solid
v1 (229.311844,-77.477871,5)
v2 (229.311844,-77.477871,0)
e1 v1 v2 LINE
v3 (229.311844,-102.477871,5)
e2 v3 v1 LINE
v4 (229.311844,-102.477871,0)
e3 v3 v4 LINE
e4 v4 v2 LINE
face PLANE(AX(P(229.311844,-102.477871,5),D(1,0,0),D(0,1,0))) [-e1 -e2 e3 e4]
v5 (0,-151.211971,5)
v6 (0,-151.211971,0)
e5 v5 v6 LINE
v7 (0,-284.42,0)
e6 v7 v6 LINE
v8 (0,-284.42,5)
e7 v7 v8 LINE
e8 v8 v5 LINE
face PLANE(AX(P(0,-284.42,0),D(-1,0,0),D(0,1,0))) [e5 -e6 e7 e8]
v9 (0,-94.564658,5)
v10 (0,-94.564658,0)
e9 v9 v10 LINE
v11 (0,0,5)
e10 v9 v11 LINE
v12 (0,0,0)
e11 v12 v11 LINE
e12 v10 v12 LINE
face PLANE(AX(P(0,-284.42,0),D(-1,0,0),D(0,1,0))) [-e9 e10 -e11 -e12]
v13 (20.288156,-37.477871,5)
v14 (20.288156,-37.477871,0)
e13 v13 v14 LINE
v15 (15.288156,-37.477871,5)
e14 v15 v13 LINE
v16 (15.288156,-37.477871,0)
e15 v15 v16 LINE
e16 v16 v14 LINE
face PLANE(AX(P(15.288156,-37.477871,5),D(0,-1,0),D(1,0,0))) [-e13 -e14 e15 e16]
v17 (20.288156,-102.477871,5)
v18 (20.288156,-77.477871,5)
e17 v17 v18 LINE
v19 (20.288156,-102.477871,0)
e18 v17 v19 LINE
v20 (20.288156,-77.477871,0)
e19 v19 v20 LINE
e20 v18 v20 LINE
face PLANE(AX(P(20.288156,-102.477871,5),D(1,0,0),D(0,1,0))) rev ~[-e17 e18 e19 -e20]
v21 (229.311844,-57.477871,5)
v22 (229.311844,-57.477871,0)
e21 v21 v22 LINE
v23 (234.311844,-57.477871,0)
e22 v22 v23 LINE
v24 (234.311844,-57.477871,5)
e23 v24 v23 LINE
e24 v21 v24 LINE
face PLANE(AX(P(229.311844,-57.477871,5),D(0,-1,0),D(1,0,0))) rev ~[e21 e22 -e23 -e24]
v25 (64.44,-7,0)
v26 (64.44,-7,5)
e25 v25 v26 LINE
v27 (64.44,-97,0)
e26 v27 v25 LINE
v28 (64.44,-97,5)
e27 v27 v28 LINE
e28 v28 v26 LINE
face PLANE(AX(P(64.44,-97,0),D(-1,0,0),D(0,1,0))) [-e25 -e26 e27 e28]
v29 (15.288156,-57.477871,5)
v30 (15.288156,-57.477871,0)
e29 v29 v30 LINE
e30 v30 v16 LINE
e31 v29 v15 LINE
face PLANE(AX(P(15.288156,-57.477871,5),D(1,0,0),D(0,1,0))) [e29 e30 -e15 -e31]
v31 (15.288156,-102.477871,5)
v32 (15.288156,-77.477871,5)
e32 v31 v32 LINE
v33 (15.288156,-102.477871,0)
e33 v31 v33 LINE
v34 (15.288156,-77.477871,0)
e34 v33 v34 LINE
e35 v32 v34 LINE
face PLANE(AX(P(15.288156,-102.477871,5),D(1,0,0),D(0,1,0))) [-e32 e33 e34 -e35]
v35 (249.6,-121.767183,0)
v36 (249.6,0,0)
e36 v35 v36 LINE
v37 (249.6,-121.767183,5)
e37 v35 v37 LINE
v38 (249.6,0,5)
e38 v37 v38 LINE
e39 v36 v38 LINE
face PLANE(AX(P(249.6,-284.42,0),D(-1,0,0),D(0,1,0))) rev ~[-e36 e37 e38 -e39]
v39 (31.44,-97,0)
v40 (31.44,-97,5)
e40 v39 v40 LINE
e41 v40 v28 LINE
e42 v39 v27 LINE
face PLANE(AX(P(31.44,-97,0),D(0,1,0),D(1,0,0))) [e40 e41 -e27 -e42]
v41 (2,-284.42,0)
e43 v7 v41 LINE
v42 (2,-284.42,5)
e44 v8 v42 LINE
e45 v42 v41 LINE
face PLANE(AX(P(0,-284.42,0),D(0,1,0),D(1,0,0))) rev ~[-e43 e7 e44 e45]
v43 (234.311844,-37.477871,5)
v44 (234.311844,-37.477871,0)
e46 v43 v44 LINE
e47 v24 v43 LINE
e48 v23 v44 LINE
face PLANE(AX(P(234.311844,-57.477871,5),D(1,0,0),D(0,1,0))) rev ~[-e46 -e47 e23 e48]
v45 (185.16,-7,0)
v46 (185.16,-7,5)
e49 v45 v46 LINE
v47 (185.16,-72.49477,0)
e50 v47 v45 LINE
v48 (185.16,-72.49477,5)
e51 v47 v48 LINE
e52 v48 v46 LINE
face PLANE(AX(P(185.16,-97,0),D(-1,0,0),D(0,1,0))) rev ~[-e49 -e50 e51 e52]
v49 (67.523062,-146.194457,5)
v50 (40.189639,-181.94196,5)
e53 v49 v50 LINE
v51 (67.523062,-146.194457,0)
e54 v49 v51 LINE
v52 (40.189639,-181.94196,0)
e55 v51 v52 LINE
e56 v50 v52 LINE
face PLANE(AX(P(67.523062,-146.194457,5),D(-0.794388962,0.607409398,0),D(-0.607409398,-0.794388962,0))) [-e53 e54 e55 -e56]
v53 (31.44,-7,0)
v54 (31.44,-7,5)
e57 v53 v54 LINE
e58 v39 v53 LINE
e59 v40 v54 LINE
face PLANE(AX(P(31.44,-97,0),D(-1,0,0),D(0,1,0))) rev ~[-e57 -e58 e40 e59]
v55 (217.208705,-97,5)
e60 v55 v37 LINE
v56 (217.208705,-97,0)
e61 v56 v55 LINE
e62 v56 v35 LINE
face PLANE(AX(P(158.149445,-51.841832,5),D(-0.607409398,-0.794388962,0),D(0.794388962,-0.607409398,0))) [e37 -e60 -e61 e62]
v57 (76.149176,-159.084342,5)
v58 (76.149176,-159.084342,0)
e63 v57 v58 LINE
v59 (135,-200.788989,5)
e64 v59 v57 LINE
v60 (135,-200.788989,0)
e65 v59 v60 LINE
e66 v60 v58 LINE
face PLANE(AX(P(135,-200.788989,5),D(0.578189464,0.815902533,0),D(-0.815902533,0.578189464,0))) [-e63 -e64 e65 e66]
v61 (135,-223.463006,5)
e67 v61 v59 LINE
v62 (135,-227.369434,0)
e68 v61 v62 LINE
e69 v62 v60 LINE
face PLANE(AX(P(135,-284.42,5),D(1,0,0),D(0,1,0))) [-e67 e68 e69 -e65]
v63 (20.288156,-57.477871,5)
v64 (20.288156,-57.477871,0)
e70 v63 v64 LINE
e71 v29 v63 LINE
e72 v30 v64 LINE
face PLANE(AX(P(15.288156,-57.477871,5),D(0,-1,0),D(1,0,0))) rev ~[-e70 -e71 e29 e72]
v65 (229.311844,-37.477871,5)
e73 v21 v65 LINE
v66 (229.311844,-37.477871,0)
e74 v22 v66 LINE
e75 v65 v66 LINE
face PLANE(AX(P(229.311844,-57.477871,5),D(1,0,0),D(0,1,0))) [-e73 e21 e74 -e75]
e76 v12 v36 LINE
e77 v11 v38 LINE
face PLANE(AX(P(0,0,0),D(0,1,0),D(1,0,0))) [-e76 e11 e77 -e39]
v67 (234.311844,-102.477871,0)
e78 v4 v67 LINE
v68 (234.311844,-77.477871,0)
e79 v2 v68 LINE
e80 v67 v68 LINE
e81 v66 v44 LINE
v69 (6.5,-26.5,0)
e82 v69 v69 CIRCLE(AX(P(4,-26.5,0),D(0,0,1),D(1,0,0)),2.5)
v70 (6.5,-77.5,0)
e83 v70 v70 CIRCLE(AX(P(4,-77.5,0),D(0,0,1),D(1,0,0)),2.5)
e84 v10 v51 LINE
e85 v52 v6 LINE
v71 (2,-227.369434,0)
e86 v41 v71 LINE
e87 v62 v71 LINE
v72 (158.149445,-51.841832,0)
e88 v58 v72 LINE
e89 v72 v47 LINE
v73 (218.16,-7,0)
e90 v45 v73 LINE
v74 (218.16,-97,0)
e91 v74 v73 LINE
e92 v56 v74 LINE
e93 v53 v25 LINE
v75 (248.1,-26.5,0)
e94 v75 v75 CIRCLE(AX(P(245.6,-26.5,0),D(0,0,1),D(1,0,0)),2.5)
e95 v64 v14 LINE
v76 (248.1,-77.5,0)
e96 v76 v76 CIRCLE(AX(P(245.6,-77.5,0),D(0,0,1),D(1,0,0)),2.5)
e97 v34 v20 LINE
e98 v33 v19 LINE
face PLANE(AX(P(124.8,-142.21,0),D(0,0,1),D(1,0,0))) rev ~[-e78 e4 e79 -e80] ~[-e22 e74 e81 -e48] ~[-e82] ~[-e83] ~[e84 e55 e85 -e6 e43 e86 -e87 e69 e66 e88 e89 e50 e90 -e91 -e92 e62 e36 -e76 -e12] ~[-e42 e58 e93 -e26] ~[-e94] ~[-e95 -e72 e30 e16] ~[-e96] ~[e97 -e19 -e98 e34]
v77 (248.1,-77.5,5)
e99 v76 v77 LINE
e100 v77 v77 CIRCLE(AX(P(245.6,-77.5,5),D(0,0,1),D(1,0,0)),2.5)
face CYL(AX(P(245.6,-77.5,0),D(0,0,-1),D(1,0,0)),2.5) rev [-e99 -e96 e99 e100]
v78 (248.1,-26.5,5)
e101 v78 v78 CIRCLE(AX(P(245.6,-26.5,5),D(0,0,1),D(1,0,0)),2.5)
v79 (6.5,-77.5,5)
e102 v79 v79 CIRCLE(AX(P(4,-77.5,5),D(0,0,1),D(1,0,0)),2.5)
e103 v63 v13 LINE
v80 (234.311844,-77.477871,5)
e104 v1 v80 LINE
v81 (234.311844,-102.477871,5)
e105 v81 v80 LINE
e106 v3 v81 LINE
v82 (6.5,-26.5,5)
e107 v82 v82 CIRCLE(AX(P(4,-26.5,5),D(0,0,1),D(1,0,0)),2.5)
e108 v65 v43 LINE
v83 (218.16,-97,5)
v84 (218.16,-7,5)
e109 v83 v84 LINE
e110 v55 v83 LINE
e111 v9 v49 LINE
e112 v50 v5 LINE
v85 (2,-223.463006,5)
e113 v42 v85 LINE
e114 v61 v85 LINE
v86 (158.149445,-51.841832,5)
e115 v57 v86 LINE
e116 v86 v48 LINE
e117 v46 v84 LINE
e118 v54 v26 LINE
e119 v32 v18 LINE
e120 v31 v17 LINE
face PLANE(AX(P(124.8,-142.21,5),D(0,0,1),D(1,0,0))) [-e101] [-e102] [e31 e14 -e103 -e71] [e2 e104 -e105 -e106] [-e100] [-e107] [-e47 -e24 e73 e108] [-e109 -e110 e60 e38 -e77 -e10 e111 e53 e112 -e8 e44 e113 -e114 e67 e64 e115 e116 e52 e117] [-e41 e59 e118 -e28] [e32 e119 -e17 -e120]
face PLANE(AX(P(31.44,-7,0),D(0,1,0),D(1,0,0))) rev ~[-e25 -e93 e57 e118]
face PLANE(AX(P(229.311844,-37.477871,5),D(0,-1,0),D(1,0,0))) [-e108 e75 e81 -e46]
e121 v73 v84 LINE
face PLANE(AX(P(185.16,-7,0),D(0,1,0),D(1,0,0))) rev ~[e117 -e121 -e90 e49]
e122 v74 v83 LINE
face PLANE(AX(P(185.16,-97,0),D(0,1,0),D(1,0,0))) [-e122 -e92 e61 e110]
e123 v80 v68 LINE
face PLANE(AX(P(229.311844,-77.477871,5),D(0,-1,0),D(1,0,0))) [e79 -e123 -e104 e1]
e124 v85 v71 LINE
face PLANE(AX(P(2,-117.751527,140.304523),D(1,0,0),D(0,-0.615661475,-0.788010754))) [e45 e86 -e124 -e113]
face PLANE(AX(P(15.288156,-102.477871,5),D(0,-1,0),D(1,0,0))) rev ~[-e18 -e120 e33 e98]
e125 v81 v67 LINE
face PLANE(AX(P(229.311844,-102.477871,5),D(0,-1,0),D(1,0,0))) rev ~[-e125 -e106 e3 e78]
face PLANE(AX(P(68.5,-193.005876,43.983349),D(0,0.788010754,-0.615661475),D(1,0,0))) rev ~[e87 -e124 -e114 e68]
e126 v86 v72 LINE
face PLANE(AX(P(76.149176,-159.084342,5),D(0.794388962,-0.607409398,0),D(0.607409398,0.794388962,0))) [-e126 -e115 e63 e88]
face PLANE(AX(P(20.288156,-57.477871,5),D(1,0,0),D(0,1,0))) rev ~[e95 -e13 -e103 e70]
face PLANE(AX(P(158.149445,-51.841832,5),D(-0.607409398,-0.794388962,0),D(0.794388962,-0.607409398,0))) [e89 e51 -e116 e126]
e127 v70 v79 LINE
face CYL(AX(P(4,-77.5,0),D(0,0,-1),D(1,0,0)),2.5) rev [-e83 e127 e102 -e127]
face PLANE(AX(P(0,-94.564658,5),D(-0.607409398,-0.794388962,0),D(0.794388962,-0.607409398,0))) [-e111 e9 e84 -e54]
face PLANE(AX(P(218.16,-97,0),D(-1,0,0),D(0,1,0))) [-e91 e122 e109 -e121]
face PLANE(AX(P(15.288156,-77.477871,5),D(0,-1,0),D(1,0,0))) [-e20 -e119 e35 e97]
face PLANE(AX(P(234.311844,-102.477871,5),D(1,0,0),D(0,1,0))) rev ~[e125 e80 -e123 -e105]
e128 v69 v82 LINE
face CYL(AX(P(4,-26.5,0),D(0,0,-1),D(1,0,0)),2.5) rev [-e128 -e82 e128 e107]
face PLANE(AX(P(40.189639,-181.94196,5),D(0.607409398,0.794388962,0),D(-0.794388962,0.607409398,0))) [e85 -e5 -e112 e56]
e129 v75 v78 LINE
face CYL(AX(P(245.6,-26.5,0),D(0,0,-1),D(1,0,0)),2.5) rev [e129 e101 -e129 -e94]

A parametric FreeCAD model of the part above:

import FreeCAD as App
import Part
import Sketcher

V = App.Vector

doc = App.newDocument("Part")
body = doc.addObject("PartDesign::Body", "Body")

# Sketch on XY plane
sketch1 = body.newObject("Sketcher::SketchObject", "Sketch")
sketch1.AttachmentSupport = (doc.getObject("XY_Plane"), [""])
sketch1.MapMode = "FlatFace"
sketch1.addGeometry(Part.LineSegment(V(0, 0, 0), V(0, -284.4, 0)), False)
sketch1.addGeometry(Part.LineSegment(V(0, -284.4, 0), V(249.6, -284.4, 0)), False)
sketch1.addGeometry(Part.LineSegment(V(249.6, -284.4, 0), V(249.6, 0, 0)), False)
sketch1.addGeometry(Part.LineSegment(V(249.6, 0, 0), V(0, 0, 0)), False)
sketch1.addGeometry(Part.Circle(V(4, -77.5, 0), V(0, 0, 1), 2.5), False)
sketch1.addGeometry(Part.Circle(V(245.6, -77.5, 0), V(0, 0, 1), 2.5), False)
sketch1.addGeometry(Part.LineSegment(V(64.4, -97, 0), V(31.4, -97, 0)), False)
sketch1.addGeometry(Part.LineSegment(V(31.4, -97, 0), V(31.4, -7, 0)), False)
sketch1.addGeometry(Part.LineSegment(V(31.4, -7, 0), V(64.4, -7, 0)), False)
sketch1.addGeometry(Part.LineSegment(V(64.4, -7, 0), V(64.4, -97, 0)), False)
sketch1.addGeometry(Part.Circle(V(4, -26.5, 0), V(0, 0, 1), 2.5), False)
sketch1.addGeometry(Part.LineSegment(V(218.2, -97, 0), V(185.2, -97, 0)), False)
sketch1.addGeometry(Part.LineSegment(V(185.2, -97, 0), V(185.2, -7, 0)), False)
sketch1.addGeometry(Part.LineSegment(V(185.2, -7, 0), V(218.2, -7, 0)), False)
sketch1.addGeometry(Part.LineSegment(V(218.2, -7, 0), V(218.2, -97, 0)), False)
sketch1.addGeometry(Part.Circle(V(245.6, -26.5, 0), V(0, 0, 1), 2.5), False)
sketch1.addConstraint(Sketcher.Constraint("Coincident", 0, 2, 1, 1))
sketch1.addConstraint(Sketcher.Constraint("Coincident", 1, 2, 2, 1))
sketch1.addConstraint(Sketcher.Constraint("Coincident", 2, 2, 3, 1))
sketch1.addConstraint(Sketcher.Constraint("Coincident", 3, 2, 0, 1))
sketch1.addConstraint(Sketcher.Constraint("Coincident", 6, 2, 7, 1))
sketch1.addConstraint(Sketcher.Constraint("Coincident", 7, 2, 8, 1))
sketch1.addConstraint(Sketcher.Constraint("Coincident", 8, 2, 9, 1))
sketch1.addConstraint(Sketcher.Constraint("Coincident", 9, 2, 6, 1))
sketch1.addConstraint(Sketcher.Constraint("Coincident", 11, 2, 12, 1))
sketch1.addConstraint(Sketcher.Constraint("Coincident", 12, 2, 13, 1))
sketch1.addConstraint(Sketcher.Constraint("Coincident", 13, 2, 14, 1))
sketch1.addConstraint(Sketcher.Constraint("Coincident", 14, 2, 11, 1))
sketch1.addConstraint(Sketcher.Constraint("Vertical", 0))
sketch1.addConstraint(Sketcher.Constraint("Horizontal", 1))
sketch1.addConstraint(Sketcher.Constraint("Vertical", 2))
sketch1.addConstraint(Sketcher.Constraint("Horizontal", 3))
sketch1.addConstraint(Sketcher.Constraint("Horizontal", 6))
sketch1.addConstraint(Sketcher.Constraint("Vertical", 7))
sketch1.addConstraint(Sketcher.Constraint("Horizontal", 8))
sketch1.addConstraint(Sketcher.Constraint("Vertical", 9))
sketch1.addConstraint(Sketcher.Constraint("Horizontal", 11))
sketch1.addConstraint(Sketcher.Constraint("Vertical", 12))
sketch1.addConstraint(Sketcher.Constraint("Horizontal", 13))
sketch1.addConstraint(Sketcher.Constraint("Vertical", 14))
sketch1.addConstraint(Sketcher.Constraint("Coincident", 3, 2, -1, 1))
sketch1.addConstraint(Sketcher.Constraint("Equal", 4, 5))
sketch1.addConstraint(Sketcher.Constraint("Equal", 5, 10))
sketch1.addConstraint(Sketcher.Constraint("Equal", 10, 15))
sketch1.addConstraint(Sketcher.Constraint("Horizontal", 4, 3, 5, 3))
sketch1.addConstraint(Sketcher.Constraint("Horizontal", 10, 3, 15, 3))
sketch1.addConstraint(Sketcher.Constraint("Horizontal", 9, 2, 11, 2))
sketch1.addConstraint(Sketcher.Constraint("Horizontal", 8, 2, 12, 2))
sketch1.addConstraint(Sketcher.Constraint("Vertical", 4, 3, 10, 3))
sketch1.addConstraint(Sketcher.Constraint("Vertical", 5, 3, 15, 3))
sketch1.addConstraint(Sketcher.Constraint("Equal", 8, 11))
sketch1.addConstraint(Sketcher.Constraint("Diameter", 4, 5.0))
sketch1.addConstraint(Sketcher.Constraint("DistanceX", 6, 2, 6, 1, 33.0))
sketch1.addConstraint(Sketcher.Constraint("DistanceY", 7, 1, 7, 2, 90.0))
sketch1.addConstraint(Sketcher.Constraint("DistanceX", 1, 1, 1, 2, 249.6))
sketch1.addConstraint(Sketcher.Constraint("DistanceX", -1, 1, 4, 3, 4.0))
sketch1.addConstraint(Sketcher.Constraint("DistanceY", 6, 2, -1, 1, 97.0))
sketch1.addConstraint(Sketcher.Constraint("DistanceY", 4, 3, 10, 3, 51.0))
sketch1.addConstraint(Sketcher.Constraint("DistanceX", 5, 3, 1, 2, 4.0))
sketch1.addConstraint(Sketcher.Constraint("DistanceY", 0, 2, 0, 1, 284.42))
sketch1.addConstraint(Sketcher.Constraint("DistanceY", 4, 3, -1, 1, 77.5))
sketch1.addConstraint(Sketcher.Constraint("DistanceX", -1, 1, 6, 2, 31.44))
sketch1.addConstraint(Sketcher.Constraint("DistanceX", -1, 1, 11, 2, 185.16))
pad1 = body.newObject("PartDesign::Pad", "Pad")
pad1.Profile = sketch1
pad1.Length = 5

# Sketch on an angled plane
sketch2 = body.newObject("Sketcher::SketchObject", "Sketch001")
sketch2.Placement = App.Placement(V(0, -141.187539, 110.307795), App.Rotation(V(1, 0, 0), V(0, -0.615661475, -0.788010754), V(0, 0.788010754, -0.615661475), "ZXY"))
sketch2.addGeometry(Part.LineSegment(V(2, 206, 0), V(2, -38, 0)), False)
sketch2.addGeometry(Part.LineSegment(V(2, -38, 0), V(135, -38, 0)), False)
sketch2.addGeometry(Part.LineSegment(V(135, -38, 0), V(135, 206, 0)), False)
sketch2.addGeometry(Part.LineSegment(V(135, 206, 0), V(2, 206, 0)), False)
sketch2.addConstraint(Sketcher.Constraint("Coincident", 0, 2, 1, 1))
sketch2.addConstraint(Sketcher.Constraint("Coincident", 1, 2, 2, 1))
sketch2.addConstraint(Sketcher.Constraint("Coincident", 2, 2, 3, 1))
sketch2.addConstraint(Sketcher.Constraint("Coincident", 3, 2, 0, 1))
sketch2.addConstraint(Sketcher.Constraint("Vertical", 0))
sketch2.addConstraint(Sketcher.Constraint("Horizontal", 1))
sketch2.addConstraint(Sketcher.Constraint("Vertical", 2))
sketch2.addConstraint(Sketcher.Constraint("Horizontal", 3))
sketch2.addConstraint(Sketcher.Constraint("DistanceX", 1, 1, 1, 2, 133.0))
sketch2.addConstraint(Sketcher.Constraint("DistanceX", -1, 1, 0, 2, 2.0))
sketch2.addConstraint(Sketcher.Constraint("DistanceY", 0, 2, 0, 1, 244.466651))
sketch2.addConstraint(Sketcher.Constraint("DistanceY", 0, 2, -1, 1, 38.066395))
pocket1 = body.newObject("PartDesign::Pocket", "Pocket")
pocket1.Profile = sketch2
pocket1.Type = "ThroughAll"

# Sketch on XY plane
sketch3 = body.newObject("Sketcher::SketchObject", "Sketch002")
sketch3.AttachmentSupport = (doc.getObject("XY_Plane"), [""])
sketch3.MapMode = "FlatFace"
sketch3.AttachmentOffset = App.Placement(V(0, 0, 5), App.Rotation())
sketch3.addGeometry(Part.LineSegment(V(158, -52, 0), V(76, -159, 0)), False)
sketch3.addGeometry(Part.LineSegment(V(76, -159, 0), V(135, -201, 0)), False)
sketch3.addGeometry(Part.LineSegment(V(135, -201, 0), V(135, -284, 0)), False)
sketch3.addGeometry(Part.LineSegment(V(135, -284, 0), V(207, -340, 0)), False)
sketch3.addGeometry(Part.LineSegment(V(207, -340, 0), V(328, -182, 0)), False)
sketch3.addGeometry(Part.LineSegment(V(328, -182, 0), V(158, -52, 0)), False)
sketch3.addConstraint(Sketcher.Constraint("Coincident", 0, 2, 1, 1))
sketch3.addConstraint(Sketcher.Constraint("Coincident", 1, 2, 2, 1))
sketch3.addConstraint(Sketcher.Constraint("Coincident", 2, 2, 3, 1))
sketch3.addConstraint(Sketcher.Constraint("Coincident", 3, 2, 4, 1))
sketch3.addConstraint(Sketcher.Constraint("Coincident", 4, 2, 5, 1))
sketch3.addConstraint(Sketcher.Constraint("Coincident", 5, 2, 0, 1))
sketch3.addConstraint(Sketcher.Constraint("Vertical", 2))
sketch3.addConstraint(Sketcher.Constraint("Perpendicular", 0, 3))
sketch3.addConstraint(Sketcher.Constraint("Perpendicular", 3, 4))
sketch3.addConstraint(Sketcher.Constraint("Perpendicular", 4, 5))
sketch3.addConstraint(Sketcher.Constraint("Distance", 0, 135.0))
sketch3.addConstraint(Sketcher.Constraint("DistanceX", -1, 1, 1, 2, 135.0))
sketch3.addConstraint(Sketcher.Constraint("DistanceY", 2, 2, -1, 1, 284.42))
sketch3.addConstraint(Sketcher.Constraint("DistanceY", 2, 2, 2, 1, 83.631011))
sketch3.addConstraint(Sketcher.Constraint("Distance", 4, 198.818719))
sketch3.addConstraint(Sketcher.Constraint("DistanceX", -1, 1, 3, 2, 207.318768))
sketch3.addConstraint(Sketcher.Constraint("DistanceY", 4, 2, -1, 1, 181.777318))
sketch3.addConstraint(Sketcher.Constraint("DistanceY", 3, 2, 0, 2, 180.632372))
pocket2 = body.newObject("PartDesign::Pocket", "Pocket001")
pocket2.Profile = sketch3
pocket2.Type = "ThroughAll"

# Sketch on XY plane
sketch4 = body.newObject("Sketcher::SketchObject", "Sketch003")
sketch4.AttachmentSupport = (doc.getObject("XY_Plane"), [""])
sketch4.MapMode = "FlatFace"
sketch4.AttachmentOffset = App.Placement(V(0, 0, 5), App.Rotation())
sketch4.addGeometry(Part.LineSegment(V(68, -146, 0), V(0, -95, 0)), False)
sketch4.addGeometry(Part.LineSegment(V(0, -95, 0), V(-27, -130, 0)), False)
sketch4.addGeometry(Part.LineSegment(V(-27, -130, 0), V(40, -182, 0)), False)
sketch4.addGeometry(Part.LineSegment(V(40, -182, 0), V(68, -146, 0)), False)
sketch4.addConstraint(Sketcher.Constraint("Coincident", 0, 2, 1, 1))
sketch4.addConstraint(Sketcher.Constraint("Coincident", 1, 2, 2, 1))
sketch4.addConstraint(Sketcher.Constraint("Coincident", 2, 2, 3, 1))
sketch4.addConstraint(Sketcher.Constraint("Coincident", 3, 2, 0, 1))
sketch4.addConstraint(Sketcher.Constraint("PointOnObject", 0, 2, -2))
sketch4.addConstraint(Sketcher.Constraint("Perpendicular", 0, 1))
sketch4.addConstraint(Sketcher.Constraint("Perpendicular", 1, 2))
sketch4.addConstraint(Sketcher.Constraint("Perpendicular", 2, 3))
sketch4.addConstraint(Sketcher.Constraint("Distance", 0, 85.0))
sketch4.addConstraint(Sketcher.Constraint("Distance", 1, 45.0))
sketch4.addConstraint(Sketcher.Constraint("DistanceY", 2, 2, 1, 2, 51.629799))
sketch4.addConstraint(Sketcher.Constraint("DistanceY", 0, 2, -1, 1, 94.564658))
pocket3 = body.newObject("PartDesign::Pocket", "Pocket002")
pocket3.Profile = sketch4
pocket3.Type = "ThroughAll"

# Sketch on XY plane
sketch5 = body.newObject("Sketcher::SketchObject", "Sketch004")
sketch5.AttachmentSupport = (doc.getObject("XY_Plane"), [""])
sketch5.MapMode = "FlatFace"
sketch5.AttachmentOffset = App.Placement(V(0, 0, 5), App.Rotation())
sketch5.addGeometry(Part.LineSegment(V(15, -37, 0), V(15, -57, 0)), False)
sketch5.addGeometry(Part.LineSegment(V(15, -57, 0), V(20, -57, 0)), False)
sketch5.addGeometry(Part.LineSegment(V(20, -57, 0), V(20, -37, 0)), False)
sketch5.addGeometry(Part.LineSegment(V(20, -37, 0), V(15, -37, 0)), False)
sketch5.addGeometry(Part.LineSegment(V(229, -37, 0), V(229, -57, 0)), False)
sketch5.addGeometry(Part.LineSegment(V(229, -57, 0), V(234, -57, 0)), False)
sketch5.addGeometry(Part.LineSegment(V(234, -57, 0), V(234, -37, 0)), False)
sketch5.addGeometry(Part.LineSegment(V(234, -37, 0), V(229, -37, 0)), False)
sketch5.addGeometry(Part.LineSegment(V(15, -77, 0), V(15, -102, 0)), False)
sketch5.addGeometry(Part.LineSegment(V(15, -102, 0), V(20, -102, 0)), False)
sketch5.addGeometry(Part.LineSegment(V(20, -102, 0), V(20, -77, 0)), False)
sketch5.addGeometry(Part.LineSegment(V(20, -77, 0), V(15, -77, 0)), False)
sketch5.addGeometry(Part.LineSegment(V(229, -77, 0), V(229, -102, 0)), False)
sketch5.addGeometry(Part.LineSegment(V(229, -102, 0), V(234, -102, 0)), False)
sketch5.addGeometry(Part.LineSegment(V(234, -102, 0), V(234, -77, 0)), False)
sketch5.addGeometry(Part.LineSegment(V(234, -77, 0), V(229, -77, 0)), False)
sketch5.addConstraint(Sketcher.Constraint("Coincident", 0, 2, 1, 1))
sketch5.addConstraint(Sketcher.Constraint("Coincident", 1, 2, 2, 1))
sketch5.addConstraint(Sketcher.Constraint("Coincident", 2, 2, 3, 1))
sketch5.addConstraint(Sketcher.Constraint("Coincident", 3, 2, 0, 1))
sketch5.addConstraint(Sketcher.Constraint("Coincident", 4, 2, 5, 1))
sketch5.addConstraint(Sketcher.Constraint("Coincident", 5, 2, 6, 1))
sketch5.addConstraint(Sketcher.Constraint("Coincident", 6, 2, 7, 1))
sketch5.addConstraint(Sketcher.Constraint("Coincident", 7, 2, 4, 1))
sketch5.addConstraint(Sketcher.Constraint("Coincident", 8, 2, 9, 1))
sketch5.addConstraint(Sketcher.Constraint("Coincident", 9, 2, 10, 1))
sketch5.addConstraint(Sketcher.Constraint("Coincident", 10, 2, 11, 1))
sketch5.addConstraint(Sketcher.Constraint("Coincident", 11, 2, 8, 1))
sketch5.addConstraint(Sketcher.Constraint("Coincident", 12, 2, 13, 1))
sketch5.addConstraint(Sketcher.Constraint("Coincident", 13, 2, 14, 1))
sketch5.addConstraint(Sketcher.Constraint("Coincident", 14, 2, 15, 1))
sketch5.addConstraint(Sketcher.Constraint("Coincident", 15, 2, 12, 1))
sketch5.addConstraint(Sketcher.Constraint("Vertical", 0))
sketch5.addConstraint(Sketcher.Constraint("Horizontal", 1))
sketch5.addConstraint(Sketcher.Constraint("Vertical", 2))
sketch5.addConstraint(Sketcher.Constraint("Horizontal", 3))
sketch5.addConstraint(Sketcher.Constraint("Vertical", 4))
sketch5.addConstraint(Sketcher.Constraint("Horizontal", 5))
sketch5.addConstraint(Sketcher.Constraint("Vertical", 6))
sketch5.addConstraint(Sketcher.Constraint("Horizontal", 7))
sketch5.addConstraint(Sketcher.Constraint("Vertical", 8))
sketch5.addConstraint(Sketcher.Constraint("Horizontal", 9))
sketch5.addConstraint(Sketcher.Constraint("Vertical", 10))
sketch5.addConstraint(Sketcher.Constraint("Horizontal", 11))
sketch5.addConstraint(Sketcher.Constraint("Vertical", 12))
sketch5.addConstraint(Sketcher.Constraint("Horizontal", 13))
sketch5.addConstraint(Sketcher.Constraint("Vertical", 14))
sketch5.addConstraint(Sketcher.Constraint("Horizontal", 15))
sketch5.addConstraint(Sketcher.Constraint("Horizontal", 1, 2, 4, 2))
sketch5.addConstraint(Sketcher.Constraint("Horizontal", 3, 2, 6, 2))
sketch5.addConstraint(Sketcher.Constraint("Horizontal", 9, 2, 12, 2))
sketch5.addConstraint(Sketcher.Constraint("Horizontal", 11, 2, 14, 2))
sketch5.addConstraint(Sketcher.Constraint("Vertical", 3, 2, 8, 2))
sketch5.addConstraint(Sketcher.Constraint("Vertical", 2, 2, 9, 2))
sketch5.addConstraint(Sketcher.Constraint("Vertical", 7, 2, 12, 2))
sketch5.addConstraint(Sketcher.Constraint("Vertical", 6, 2, 13, 2))
sketch5.addConstraint(Sketcher.Constraint("Equal", 3, 5))
sketch5.addConstraint(Sketcher.Constraint("DistanceX", 1, 1, 1, 2, 5.0))
sketch5.addConstraint(Sketcher.Constraint("DistanceY", 0, 2, 0, 1, 20.0))
sketch5.addConstraint(Sketcher.Constraint("DistanceY", 8, 2, 8, 1, 25.0))
sketch5.addConstraint(Sketcher.Constraint("DistanceY", 8, 2, 0, 2, 45.0))
sketch5.addConstraint(Sketcher.Constraint("DistanceY", 0, 2, -1, 1, 57.477871))
sketch5.addConstraint(Sketcher.Constraint("DistanceX", 1, 2, 4, 2, 209.023689))
sketch5.addConstraint(Sketcher.Constraint("DistanceX", -1, 1, 0, 2, 15.288156))
pocket4 = body.newObject("PartDesign::Pocket", "Pocket003")
pocket4.Profile = sketch5
pocket4.Type = "ThroughAll"

doc.recompute()
